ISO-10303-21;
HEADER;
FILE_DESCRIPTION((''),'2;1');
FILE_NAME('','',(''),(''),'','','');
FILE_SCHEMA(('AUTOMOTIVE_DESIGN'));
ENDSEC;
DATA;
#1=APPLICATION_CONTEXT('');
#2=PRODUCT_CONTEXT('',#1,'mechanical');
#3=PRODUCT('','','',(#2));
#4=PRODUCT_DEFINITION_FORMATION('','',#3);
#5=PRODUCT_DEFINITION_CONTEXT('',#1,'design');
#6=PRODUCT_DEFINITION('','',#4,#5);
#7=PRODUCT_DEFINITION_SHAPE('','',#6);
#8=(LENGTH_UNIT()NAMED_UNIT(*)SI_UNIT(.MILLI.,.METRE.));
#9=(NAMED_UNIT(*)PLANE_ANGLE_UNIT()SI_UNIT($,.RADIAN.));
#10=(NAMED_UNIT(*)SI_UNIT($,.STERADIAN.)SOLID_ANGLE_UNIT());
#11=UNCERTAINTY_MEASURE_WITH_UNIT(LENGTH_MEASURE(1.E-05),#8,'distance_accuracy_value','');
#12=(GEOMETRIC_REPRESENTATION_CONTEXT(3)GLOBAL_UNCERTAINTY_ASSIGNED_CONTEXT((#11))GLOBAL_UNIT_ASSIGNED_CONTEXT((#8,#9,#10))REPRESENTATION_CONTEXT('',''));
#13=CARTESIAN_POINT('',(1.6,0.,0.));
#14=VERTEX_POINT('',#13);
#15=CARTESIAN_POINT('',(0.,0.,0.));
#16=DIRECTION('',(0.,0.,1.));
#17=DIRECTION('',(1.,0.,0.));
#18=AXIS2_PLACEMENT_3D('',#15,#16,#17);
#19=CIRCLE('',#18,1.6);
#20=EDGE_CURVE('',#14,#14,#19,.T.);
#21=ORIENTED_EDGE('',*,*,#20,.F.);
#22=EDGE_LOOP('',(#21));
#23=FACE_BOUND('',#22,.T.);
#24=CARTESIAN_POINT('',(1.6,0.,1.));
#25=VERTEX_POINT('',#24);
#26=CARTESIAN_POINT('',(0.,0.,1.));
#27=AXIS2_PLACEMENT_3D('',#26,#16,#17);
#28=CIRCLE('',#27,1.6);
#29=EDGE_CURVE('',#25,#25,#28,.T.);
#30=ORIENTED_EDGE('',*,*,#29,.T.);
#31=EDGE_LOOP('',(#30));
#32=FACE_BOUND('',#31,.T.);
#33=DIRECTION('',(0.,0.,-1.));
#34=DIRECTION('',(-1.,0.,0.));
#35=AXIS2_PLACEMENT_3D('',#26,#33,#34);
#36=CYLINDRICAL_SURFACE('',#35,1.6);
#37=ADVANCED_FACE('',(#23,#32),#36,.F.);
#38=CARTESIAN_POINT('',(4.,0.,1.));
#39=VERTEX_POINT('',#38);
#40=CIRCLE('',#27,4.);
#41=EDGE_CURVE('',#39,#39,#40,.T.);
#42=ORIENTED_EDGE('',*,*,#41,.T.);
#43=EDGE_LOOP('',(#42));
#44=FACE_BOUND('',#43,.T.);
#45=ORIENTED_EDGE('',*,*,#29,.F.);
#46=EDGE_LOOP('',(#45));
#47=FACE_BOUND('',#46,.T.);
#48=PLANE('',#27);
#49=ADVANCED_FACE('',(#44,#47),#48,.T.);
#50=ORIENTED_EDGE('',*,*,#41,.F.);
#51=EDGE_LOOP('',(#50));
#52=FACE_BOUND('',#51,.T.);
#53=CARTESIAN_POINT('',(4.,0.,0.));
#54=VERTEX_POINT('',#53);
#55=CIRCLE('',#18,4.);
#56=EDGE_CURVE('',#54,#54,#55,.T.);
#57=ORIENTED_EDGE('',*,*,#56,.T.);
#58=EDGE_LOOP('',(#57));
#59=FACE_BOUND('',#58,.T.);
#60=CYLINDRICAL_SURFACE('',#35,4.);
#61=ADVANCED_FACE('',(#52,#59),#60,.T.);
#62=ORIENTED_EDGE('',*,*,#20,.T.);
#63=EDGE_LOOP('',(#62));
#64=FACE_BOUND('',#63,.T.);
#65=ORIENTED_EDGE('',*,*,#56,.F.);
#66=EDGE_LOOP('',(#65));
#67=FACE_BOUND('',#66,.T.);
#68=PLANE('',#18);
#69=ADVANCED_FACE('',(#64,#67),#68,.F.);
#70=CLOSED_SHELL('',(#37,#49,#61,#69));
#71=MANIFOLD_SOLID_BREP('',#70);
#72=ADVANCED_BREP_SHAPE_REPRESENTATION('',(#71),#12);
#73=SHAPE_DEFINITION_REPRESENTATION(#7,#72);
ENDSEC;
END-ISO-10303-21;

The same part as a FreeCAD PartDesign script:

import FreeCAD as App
import Part
import Sketcher
Q = App.Units.Quantity

doc = App.newDocument("Part")
body = doc.addObject("PartDesign::Body", "Body")

sketch1 = body.newObject("Sketcher::SketchObject", "Sketch")
sketch1.AttachmentSupport = (doc.getObject("XY_Plane"), [""])
sketch1.MapMode = "FlatFace"
sketch1.addGeometry([
    Part.Circle(App.Vector(0, 0, 0), App.Vector(0, 0, 1), 4),
    Part.Circle(App.Vector(0, 0, 0), App.Vector(0, 0, 1), 1.6),
], False)
sketch1.addConstraint([
    Sketcher.Constraint("Coincident", 0, 3, -1, 1),
    Sketcher.Constraint("Coincident", 1, 3, -1, 1),
    Sketcher.Constraint("Diameter", 0, Q("8 mm")),
    Sketcher.Constraint("Diameter", 1, Q("3.2 mm")),
])
pad1 = body.newObject("PartDesign::Pad", "Pad")
pad1.Profile = sketch1
pad1.Length = 1

doc.recompute()
